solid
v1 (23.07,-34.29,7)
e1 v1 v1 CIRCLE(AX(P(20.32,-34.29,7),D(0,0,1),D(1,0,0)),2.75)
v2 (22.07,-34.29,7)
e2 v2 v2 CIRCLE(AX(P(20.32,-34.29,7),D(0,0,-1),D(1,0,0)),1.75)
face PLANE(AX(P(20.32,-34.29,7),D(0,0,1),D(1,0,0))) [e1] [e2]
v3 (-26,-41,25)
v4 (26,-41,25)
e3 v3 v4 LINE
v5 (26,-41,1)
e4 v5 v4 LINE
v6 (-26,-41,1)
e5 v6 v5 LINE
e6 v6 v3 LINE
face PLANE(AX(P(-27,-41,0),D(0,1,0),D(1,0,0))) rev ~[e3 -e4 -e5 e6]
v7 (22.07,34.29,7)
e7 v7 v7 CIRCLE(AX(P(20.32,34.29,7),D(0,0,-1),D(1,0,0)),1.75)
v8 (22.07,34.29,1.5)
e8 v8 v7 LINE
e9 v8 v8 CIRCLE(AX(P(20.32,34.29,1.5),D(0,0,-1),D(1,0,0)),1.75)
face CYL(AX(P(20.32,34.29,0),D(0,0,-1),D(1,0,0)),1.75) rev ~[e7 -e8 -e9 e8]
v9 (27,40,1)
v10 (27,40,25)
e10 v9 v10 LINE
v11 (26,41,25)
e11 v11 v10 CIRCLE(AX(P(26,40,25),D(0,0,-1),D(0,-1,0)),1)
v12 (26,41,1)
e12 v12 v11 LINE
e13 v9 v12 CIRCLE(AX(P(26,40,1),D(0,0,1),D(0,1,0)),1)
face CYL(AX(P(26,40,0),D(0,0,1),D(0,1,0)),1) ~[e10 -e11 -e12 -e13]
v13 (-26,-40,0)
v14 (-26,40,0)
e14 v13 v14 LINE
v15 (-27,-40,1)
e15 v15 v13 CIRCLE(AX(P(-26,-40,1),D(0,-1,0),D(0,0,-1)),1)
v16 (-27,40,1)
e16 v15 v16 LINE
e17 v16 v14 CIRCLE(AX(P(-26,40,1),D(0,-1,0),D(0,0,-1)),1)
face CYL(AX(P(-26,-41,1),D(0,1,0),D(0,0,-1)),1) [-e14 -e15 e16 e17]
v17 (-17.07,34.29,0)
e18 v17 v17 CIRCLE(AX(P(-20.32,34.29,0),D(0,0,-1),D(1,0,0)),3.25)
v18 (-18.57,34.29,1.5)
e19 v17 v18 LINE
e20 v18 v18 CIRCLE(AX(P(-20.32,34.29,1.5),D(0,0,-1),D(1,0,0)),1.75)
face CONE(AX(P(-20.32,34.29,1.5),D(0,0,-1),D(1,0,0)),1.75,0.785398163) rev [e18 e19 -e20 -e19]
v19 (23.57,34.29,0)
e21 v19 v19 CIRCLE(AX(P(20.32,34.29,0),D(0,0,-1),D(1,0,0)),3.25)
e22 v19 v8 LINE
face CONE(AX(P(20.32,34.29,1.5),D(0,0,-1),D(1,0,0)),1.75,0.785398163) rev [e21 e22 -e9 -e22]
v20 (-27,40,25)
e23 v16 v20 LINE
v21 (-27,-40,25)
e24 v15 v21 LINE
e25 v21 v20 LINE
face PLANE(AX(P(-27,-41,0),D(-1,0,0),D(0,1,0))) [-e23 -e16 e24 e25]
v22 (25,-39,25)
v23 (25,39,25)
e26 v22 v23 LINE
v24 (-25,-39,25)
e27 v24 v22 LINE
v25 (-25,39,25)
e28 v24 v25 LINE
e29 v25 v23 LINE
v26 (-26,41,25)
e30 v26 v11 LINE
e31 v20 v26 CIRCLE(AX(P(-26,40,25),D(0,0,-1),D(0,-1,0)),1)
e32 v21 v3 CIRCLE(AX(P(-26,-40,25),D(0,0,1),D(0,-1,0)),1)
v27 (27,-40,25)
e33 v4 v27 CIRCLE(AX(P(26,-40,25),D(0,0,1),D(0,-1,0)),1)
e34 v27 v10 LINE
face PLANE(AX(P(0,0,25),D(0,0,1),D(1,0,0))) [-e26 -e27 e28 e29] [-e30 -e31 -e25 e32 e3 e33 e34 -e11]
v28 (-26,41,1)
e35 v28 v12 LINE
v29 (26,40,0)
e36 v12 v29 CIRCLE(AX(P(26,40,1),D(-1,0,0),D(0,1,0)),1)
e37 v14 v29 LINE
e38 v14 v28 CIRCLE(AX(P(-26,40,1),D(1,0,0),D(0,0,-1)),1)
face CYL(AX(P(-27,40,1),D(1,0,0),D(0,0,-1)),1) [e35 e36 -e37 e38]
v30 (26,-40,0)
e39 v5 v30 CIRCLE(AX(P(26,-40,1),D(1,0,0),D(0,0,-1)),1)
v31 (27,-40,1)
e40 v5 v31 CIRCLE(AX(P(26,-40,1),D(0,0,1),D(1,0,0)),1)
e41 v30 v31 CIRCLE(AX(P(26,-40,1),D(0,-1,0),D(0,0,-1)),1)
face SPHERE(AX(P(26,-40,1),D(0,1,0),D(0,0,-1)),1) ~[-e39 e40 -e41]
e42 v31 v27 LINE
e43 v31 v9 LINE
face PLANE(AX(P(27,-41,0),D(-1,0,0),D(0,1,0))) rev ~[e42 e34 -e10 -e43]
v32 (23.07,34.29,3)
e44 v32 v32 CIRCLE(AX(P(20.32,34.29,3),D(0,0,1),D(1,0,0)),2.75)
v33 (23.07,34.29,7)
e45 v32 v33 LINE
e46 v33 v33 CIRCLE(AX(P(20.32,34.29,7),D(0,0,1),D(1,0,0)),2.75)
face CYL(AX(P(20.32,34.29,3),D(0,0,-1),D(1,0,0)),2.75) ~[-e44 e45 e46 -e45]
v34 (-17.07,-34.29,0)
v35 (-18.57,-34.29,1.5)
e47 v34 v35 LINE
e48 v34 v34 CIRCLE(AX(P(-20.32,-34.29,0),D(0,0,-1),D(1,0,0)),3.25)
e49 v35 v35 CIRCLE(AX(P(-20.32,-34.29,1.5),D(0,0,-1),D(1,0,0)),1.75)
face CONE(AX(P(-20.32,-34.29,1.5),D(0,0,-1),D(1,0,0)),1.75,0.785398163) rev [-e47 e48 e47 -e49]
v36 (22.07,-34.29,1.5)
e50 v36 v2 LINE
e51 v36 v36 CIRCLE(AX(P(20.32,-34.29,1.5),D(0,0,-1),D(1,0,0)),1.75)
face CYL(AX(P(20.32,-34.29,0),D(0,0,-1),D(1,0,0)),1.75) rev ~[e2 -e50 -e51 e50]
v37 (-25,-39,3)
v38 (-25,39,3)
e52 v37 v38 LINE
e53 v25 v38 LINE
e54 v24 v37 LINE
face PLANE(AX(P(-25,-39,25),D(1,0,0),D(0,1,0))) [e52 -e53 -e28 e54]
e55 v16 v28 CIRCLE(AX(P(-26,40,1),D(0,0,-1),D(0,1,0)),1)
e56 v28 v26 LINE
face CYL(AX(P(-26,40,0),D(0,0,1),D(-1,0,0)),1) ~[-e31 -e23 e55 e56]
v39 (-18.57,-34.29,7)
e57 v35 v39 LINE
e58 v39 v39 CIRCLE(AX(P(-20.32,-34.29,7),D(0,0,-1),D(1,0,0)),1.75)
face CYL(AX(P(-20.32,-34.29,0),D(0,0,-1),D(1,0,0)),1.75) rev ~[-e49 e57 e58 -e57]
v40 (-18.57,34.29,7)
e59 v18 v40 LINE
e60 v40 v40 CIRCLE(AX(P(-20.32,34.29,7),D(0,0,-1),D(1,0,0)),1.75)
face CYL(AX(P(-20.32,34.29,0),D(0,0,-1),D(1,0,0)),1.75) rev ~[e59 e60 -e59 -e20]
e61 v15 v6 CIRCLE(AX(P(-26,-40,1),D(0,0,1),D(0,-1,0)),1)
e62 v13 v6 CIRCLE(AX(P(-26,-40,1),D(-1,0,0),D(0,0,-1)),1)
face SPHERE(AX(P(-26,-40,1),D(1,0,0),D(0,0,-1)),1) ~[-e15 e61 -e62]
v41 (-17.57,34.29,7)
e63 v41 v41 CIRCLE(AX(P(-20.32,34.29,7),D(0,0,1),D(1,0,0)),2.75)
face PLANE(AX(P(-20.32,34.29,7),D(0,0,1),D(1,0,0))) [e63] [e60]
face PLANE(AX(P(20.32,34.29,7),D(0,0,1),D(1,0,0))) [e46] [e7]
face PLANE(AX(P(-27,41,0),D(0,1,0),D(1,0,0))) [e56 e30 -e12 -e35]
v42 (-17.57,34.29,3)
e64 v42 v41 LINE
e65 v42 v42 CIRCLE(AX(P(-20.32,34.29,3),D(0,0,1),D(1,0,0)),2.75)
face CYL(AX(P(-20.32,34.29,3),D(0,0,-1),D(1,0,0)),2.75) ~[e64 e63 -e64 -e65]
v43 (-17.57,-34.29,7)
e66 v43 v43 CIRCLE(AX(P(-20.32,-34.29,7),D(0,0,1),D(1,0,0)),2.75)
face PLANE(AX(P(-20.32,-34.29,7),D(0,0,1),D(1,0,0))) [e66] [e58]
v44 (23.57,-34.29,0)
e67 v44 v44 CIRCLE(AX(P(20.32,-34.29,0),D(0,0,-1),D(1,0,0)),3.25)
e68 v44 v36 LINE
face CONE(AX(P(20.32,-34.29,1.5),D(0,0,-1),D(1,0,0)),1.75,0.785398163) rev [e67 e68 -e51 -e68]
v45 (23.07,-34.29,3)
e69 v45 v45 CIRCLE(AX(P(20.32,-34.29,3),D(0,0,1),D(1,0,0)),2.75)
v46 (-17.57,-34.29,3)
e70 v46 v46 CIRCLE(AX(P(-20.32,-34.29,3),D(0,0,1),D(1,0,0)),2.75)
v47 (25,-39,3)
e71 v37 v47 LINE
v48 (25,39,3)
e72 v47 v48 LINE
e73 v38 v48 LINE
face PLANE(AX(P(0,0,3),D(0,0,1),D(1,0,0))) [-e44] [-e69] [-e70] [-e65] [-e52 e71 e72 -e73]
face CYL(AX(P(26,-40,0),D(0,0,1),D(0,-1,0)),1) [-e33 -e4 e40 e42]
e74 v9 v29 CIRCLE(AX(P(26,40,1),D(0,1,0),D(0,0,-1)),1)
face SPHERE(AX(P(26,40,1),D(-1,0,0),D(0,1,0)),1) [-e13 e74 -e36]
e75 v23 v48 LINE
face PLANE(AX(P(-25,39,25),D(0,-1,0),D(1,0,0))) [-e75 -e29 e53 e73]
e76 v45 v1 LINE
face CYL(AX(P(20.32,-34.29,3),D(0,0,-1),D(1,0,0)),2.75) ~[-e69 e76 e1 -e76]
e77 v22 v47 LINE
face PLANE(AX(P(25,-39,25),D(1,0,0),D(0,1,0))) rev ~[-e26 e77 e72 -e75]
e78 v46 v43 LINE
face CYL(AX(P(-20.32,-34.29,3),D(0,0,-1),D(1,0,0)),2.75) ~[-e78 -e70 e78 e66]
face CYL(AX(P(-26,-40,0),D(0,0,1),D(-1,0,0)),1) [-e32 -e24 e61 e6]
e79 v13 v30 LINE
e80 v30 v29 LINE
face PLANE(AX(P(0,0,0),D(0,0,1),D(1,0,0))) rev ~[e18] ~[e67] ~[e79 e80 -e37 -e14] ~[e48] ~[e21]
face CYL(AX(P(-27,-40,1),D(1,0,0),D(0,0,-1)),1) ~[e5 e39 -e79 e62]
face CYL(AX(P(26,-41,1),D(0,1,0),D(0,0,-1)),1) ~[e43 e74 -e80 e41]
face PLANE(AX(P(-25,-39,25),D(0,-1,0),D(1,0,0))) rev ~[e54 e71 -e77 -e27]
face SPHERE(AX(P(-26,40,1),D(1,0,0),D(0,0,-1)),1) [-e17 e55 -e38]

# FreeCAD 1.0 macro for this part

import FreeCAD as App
import Part
import Sketcher
from FreeCAD import Vector


def edges_at(feature, points):
    """Names of the edges that pass closest to the given points."""
    edges = feature.Shape.Edges
    near = lambda p: min(range(len(edges)), key=lambda i: edges[i].distToShape(Part.Vertex(*p))[0])
    return sorted({f"Edge{near(p) + 1}" for p in points})


def add_polygon(sketch, points):
    """Adds a closed chain of lines whose ends are joined by coincident constraints."""
    first, n = sketch.GeometryCount, len(points)
    for a, b in zip(points, points[1:] + points[:1]):
        sketch.addGeometry(Part.LineSegment(App.Vector(*a, 0), App.Vector(*b, 0)), False)
    for i in range(n):
        sketch.addConstraint(Sketcher.Constraint("Coincident", first + i, 2, first + (i + 1) % n, 1))

doc = App.newDocument("Part")
params = doc.addObject("Spreadsheet::Sheet", "Params")
for row, (alias, value) in enumerate([
    ("sketch1_width", "54 mm"),
    ("sketch1_height", "82 mm"),
    ("pad1_length", "25 mm"),
    ("sketch2_width", "50 mm"),
    ("sketch2_height", "78 mm"),
    ("pocket1_length", "22 mm"),
    ("sketch3_diameter", "5.5 mm"),
    ("pad2_length", "4 mm"),
    ("sketch4_diameter", "3.5 mm"),
    ("pocket2_length", "23 mm"),
    ("chamfer_size", "1.5 mm"),
    ("fillet_radius", "1 mm"),
], start=1):
    params.set(f"A{row}", alias)
    params.set(f"B{row}", "=" + value)
    params.setAlias(f"B{row}", alias)

body = doc.addObject("PartDesign::Body", "Body")

sketch1 = body.newObject("Sketcher::SketchObject", "Sketch")
sketch1.AttachmentSupport = (doc.getObject("XY_Plane"), [""])
sketch1.MapMode = "FlatFace"
add_polygon(sketch1, [(-27, 41), (-27, -41), (27, -41), (27, 41)])
sketch1.addConstraint(Sketcher.Constraint("Vertical", 0))
sketch1.addConstraint(Sketcher.Constraint("Horizontal", 1))
sketch1.addConstraint(Sketcher.Constraint("Vertical", 2))
sketch1.addConstraint(Sketcher.Constraint("Horizontal", 3))
sketch1.addConstraint(Sketcher.Constraint("Symmetric", 0, 2, 2, 2, -1, 1))
sketch1.addConstraint(Sketcher.Constraint("DistanceX", 1, 1, 1, 2, 54.0))
sketch1.addConstraint(Sketcher.Constraint("DistanceY", 0, 2, 0, 1, 82.0))
sketch1.setExpression("Constraints[9]", "Params.sketch1_width")
sketch1.setExpression("Constraints[10]", "Params.sketch1_height")
pad1 = body.newObject("PartDesign::Pad", "Pad")
pad1.Profile = sketch1
pad1.setExpression("Length", "Params.pad1_length")

sketch2 = body.newObject("Sketcher::SketchObject", "Sketch001")
sketch2.AttachmentSupport = (doc.getObject("XY_Plane"), [""])
sketch2.MapMode = "FlatFace"
sketch2.AttachmentOffset = App.Placement(Vector(0, 0, 25), App.Rotation())
add_polygon(sketch2, [(-25, 39), (-25, -39), (25, -39), (25, 39)])
sketch2.addConstraint(Sketcher.Constraint("Vertical", 0))
sketch2.addConstraint(Sketcher.Constraint("Horizontal", 1))
sketch2.addConstraint(Sketcher.Constraint("Vertical", 2))
sketch2.addConstraint(Sketcher.Constraint("Horizontal", 3))
sketch2.addConstraint(Sketcher.Constraint("Symmetric", 0, 2, 2, 2, -1, 1))
sketch2.addConstraint(Sketcher.Constraint("DistanceX", 1, 1, 1, 2, 50.0))
sketch2.addConstraint(Sketcher.Constraint("DistanceY", 0, 2, 0, 1, 78.0))
sketch2.setExpression("Constraints[9]", "Params.sketch2_width")
sketch2.setExpression("Constraints[10]", "Params.sketch2_height")
pocket1 = body.newObject("PartDesign::Pocket", "Pocket")
pocket1.Profile = sketch2
pocket1.setExpression("Length", "Params.pocket1_length")

sketch3 = body.newObject("Sketcher::SketchObject", "Sketch002")
sketch3.AttachmentSupport = (doc.getObject("XY_Plane"), [""])
sketch3.MapMode = "FlatFace"
sketch3.AttachmentOffset = App.Placement(Vector(0, 0, 3), App.Rotation())
sketch3.addGeometry(Part.Circle(Vector(-20.3, 34.3, 0), Vector(0, 0, 1), 2.8), False)
sketch3.addGeometry(Part.Circle(Vector(20.3, 34.3, 0), Vector(0, 0, 1), 2.8), False)
sketch3.addGeometry(Part.Circle(Vector(-20.3, -34.3, 0), Vector(0, 0, 1), 2.8), False)
sketch3.addGeometry(Part.Circle(Vector(20.3, -34.3, 0), Vector(0, 0, 1), 2.8), False)
sketch3.addConstraint(Sketcher.Constraint("Equal", 0, 1))
sketch3.addConstraint(Sketcher.Constraint("Equal", 1, 2))
sketch3.addConstraint(Sketcher.Constraint("Equal", 2, 3))
sketch3.addConstraint(Sketcher.Constraint("Symmetric", 1, 3, 2, 3, -1, 1))
sketch3.addConstraint(Sketcher.Constraint("Symmetric", 0, 3, 3, 3, -1, 1))
sketch3.addConstraint(Sketcher.Constraint("Symmetric", 0, 3, 1, 3, -2))
sketch3.addConstraint(Sketcher.Constraint("Diameter", 0, 5.5))
sketch3.addConstraint(Sketcher.Constraint("DistanceX", 0, 3, -1, 1, 20.32))
sketch3.addConstraint(Sketcher.Constraint("DistanceY", -1, 1, 0, 3, 34.29))
sketch3.setExpression("Constraints[6]", "Params.sketch3_diameter")
pad2 = body.newObject("PartDesign::Pad", "Pad001")
pad2.Profile = sketch3
pad2.setExpression("Length", "Params.pad2_length")

sketch4 = body.newObject("Sketcher::SketchObject", "Sketch003")
sketch4.AttachmentSupport = (doc.getObject("XY_Plane"), [""])
sketch4.MapMode = "FlatFace"
sketch4.addGeometry(Part.Circle(Vector(20.3, 34.3, 0), Vector(0, 0, 1), 1.8), False)
sketch4.addGeometry(Part.Circle(Vector(-20.3, 34.3, 0), Vector(0, 0, 1), 1.8), False)
sketch4.addGeometry(Part.Circle(Vector(-20.3, -34.3, 0), Vector(0, 0, 1), 1.8), False)
sketch4.addGeometry(Part.Circle(Vector(20.3, -34.3, 0), Vector(0, 0, 1), 1.8), False)
sketch4.addConstraint(Sketcher.Constraint("Equal", 0, 1))
sketch4.addConstraint(Sketcher.Constraint("Equal", 1, 2))
sketch4.addConstraint(Sketcher.Constraint("Equal", 2, 3))
sketch4.addConstraint(Sketcher.Constraint("Symmetric", 0, 3, 2, 3, -1, 1))
sketch4.addConstraint(Sketcher.Constraint("Symmetric", 1, 3, 3, 3, -1, 1))
sketch4.addConstraint(Sketcher.Constraint("Symmetric", 0, 3, 1, 3, -2))
sketch4.addConstraint(Sketcher.Constraint("Diameter", 0, 3.5))
sketch4.addConstraint(Sketcher.Constraint("DistanceX", -1, 1, 0, 3, 20.32))
sketch4.addConstraint(Sketcher.Constraint("DistanceY", -1, 1, 0, 3, 34.29))
sketch4.setExpression("Constraints[6]", "Params.sketch4_diameter")
pocket2 = body.newObject("PartDesign::Pocket", "Pocket001")
pocket2.Profile = sketch4
pocket2.setExpression("Length", "Params.pocket2_length")
pocket2.Reversed = True
doc.recompute()

chamfer = body.newObject("PartDesign::Chamfer", "Chamfer")
chamfer.Base = (pocket2, edges_at(pocket2, [
    (18.57, 34.29, 0),
    (-22.07, 34.29, 0),
    (-22.07, -34.29, 0),
    (18.57, -34.29, 0),
]))
chamfer.setExpression("Size", "Params.chamfer_size")
doc.recompute()

fillet = body.newObject("PartDesign::Fillet", "Fillet")
fillet.Base = (chamfer, edges_at(chamfer, [
    (0, 41, 0),
    (27, 41, 12.5),
    (27, 0, 0),
    (0, -41, 0),
    (-27, 0, 0),
    (-27, 41, 12.5),
    (27, -41, 12.5),
    (-27, -41, 12.5),
]))
fillet.setExpression("Radius", "Params.fillet_radius")

doc.recompute()
